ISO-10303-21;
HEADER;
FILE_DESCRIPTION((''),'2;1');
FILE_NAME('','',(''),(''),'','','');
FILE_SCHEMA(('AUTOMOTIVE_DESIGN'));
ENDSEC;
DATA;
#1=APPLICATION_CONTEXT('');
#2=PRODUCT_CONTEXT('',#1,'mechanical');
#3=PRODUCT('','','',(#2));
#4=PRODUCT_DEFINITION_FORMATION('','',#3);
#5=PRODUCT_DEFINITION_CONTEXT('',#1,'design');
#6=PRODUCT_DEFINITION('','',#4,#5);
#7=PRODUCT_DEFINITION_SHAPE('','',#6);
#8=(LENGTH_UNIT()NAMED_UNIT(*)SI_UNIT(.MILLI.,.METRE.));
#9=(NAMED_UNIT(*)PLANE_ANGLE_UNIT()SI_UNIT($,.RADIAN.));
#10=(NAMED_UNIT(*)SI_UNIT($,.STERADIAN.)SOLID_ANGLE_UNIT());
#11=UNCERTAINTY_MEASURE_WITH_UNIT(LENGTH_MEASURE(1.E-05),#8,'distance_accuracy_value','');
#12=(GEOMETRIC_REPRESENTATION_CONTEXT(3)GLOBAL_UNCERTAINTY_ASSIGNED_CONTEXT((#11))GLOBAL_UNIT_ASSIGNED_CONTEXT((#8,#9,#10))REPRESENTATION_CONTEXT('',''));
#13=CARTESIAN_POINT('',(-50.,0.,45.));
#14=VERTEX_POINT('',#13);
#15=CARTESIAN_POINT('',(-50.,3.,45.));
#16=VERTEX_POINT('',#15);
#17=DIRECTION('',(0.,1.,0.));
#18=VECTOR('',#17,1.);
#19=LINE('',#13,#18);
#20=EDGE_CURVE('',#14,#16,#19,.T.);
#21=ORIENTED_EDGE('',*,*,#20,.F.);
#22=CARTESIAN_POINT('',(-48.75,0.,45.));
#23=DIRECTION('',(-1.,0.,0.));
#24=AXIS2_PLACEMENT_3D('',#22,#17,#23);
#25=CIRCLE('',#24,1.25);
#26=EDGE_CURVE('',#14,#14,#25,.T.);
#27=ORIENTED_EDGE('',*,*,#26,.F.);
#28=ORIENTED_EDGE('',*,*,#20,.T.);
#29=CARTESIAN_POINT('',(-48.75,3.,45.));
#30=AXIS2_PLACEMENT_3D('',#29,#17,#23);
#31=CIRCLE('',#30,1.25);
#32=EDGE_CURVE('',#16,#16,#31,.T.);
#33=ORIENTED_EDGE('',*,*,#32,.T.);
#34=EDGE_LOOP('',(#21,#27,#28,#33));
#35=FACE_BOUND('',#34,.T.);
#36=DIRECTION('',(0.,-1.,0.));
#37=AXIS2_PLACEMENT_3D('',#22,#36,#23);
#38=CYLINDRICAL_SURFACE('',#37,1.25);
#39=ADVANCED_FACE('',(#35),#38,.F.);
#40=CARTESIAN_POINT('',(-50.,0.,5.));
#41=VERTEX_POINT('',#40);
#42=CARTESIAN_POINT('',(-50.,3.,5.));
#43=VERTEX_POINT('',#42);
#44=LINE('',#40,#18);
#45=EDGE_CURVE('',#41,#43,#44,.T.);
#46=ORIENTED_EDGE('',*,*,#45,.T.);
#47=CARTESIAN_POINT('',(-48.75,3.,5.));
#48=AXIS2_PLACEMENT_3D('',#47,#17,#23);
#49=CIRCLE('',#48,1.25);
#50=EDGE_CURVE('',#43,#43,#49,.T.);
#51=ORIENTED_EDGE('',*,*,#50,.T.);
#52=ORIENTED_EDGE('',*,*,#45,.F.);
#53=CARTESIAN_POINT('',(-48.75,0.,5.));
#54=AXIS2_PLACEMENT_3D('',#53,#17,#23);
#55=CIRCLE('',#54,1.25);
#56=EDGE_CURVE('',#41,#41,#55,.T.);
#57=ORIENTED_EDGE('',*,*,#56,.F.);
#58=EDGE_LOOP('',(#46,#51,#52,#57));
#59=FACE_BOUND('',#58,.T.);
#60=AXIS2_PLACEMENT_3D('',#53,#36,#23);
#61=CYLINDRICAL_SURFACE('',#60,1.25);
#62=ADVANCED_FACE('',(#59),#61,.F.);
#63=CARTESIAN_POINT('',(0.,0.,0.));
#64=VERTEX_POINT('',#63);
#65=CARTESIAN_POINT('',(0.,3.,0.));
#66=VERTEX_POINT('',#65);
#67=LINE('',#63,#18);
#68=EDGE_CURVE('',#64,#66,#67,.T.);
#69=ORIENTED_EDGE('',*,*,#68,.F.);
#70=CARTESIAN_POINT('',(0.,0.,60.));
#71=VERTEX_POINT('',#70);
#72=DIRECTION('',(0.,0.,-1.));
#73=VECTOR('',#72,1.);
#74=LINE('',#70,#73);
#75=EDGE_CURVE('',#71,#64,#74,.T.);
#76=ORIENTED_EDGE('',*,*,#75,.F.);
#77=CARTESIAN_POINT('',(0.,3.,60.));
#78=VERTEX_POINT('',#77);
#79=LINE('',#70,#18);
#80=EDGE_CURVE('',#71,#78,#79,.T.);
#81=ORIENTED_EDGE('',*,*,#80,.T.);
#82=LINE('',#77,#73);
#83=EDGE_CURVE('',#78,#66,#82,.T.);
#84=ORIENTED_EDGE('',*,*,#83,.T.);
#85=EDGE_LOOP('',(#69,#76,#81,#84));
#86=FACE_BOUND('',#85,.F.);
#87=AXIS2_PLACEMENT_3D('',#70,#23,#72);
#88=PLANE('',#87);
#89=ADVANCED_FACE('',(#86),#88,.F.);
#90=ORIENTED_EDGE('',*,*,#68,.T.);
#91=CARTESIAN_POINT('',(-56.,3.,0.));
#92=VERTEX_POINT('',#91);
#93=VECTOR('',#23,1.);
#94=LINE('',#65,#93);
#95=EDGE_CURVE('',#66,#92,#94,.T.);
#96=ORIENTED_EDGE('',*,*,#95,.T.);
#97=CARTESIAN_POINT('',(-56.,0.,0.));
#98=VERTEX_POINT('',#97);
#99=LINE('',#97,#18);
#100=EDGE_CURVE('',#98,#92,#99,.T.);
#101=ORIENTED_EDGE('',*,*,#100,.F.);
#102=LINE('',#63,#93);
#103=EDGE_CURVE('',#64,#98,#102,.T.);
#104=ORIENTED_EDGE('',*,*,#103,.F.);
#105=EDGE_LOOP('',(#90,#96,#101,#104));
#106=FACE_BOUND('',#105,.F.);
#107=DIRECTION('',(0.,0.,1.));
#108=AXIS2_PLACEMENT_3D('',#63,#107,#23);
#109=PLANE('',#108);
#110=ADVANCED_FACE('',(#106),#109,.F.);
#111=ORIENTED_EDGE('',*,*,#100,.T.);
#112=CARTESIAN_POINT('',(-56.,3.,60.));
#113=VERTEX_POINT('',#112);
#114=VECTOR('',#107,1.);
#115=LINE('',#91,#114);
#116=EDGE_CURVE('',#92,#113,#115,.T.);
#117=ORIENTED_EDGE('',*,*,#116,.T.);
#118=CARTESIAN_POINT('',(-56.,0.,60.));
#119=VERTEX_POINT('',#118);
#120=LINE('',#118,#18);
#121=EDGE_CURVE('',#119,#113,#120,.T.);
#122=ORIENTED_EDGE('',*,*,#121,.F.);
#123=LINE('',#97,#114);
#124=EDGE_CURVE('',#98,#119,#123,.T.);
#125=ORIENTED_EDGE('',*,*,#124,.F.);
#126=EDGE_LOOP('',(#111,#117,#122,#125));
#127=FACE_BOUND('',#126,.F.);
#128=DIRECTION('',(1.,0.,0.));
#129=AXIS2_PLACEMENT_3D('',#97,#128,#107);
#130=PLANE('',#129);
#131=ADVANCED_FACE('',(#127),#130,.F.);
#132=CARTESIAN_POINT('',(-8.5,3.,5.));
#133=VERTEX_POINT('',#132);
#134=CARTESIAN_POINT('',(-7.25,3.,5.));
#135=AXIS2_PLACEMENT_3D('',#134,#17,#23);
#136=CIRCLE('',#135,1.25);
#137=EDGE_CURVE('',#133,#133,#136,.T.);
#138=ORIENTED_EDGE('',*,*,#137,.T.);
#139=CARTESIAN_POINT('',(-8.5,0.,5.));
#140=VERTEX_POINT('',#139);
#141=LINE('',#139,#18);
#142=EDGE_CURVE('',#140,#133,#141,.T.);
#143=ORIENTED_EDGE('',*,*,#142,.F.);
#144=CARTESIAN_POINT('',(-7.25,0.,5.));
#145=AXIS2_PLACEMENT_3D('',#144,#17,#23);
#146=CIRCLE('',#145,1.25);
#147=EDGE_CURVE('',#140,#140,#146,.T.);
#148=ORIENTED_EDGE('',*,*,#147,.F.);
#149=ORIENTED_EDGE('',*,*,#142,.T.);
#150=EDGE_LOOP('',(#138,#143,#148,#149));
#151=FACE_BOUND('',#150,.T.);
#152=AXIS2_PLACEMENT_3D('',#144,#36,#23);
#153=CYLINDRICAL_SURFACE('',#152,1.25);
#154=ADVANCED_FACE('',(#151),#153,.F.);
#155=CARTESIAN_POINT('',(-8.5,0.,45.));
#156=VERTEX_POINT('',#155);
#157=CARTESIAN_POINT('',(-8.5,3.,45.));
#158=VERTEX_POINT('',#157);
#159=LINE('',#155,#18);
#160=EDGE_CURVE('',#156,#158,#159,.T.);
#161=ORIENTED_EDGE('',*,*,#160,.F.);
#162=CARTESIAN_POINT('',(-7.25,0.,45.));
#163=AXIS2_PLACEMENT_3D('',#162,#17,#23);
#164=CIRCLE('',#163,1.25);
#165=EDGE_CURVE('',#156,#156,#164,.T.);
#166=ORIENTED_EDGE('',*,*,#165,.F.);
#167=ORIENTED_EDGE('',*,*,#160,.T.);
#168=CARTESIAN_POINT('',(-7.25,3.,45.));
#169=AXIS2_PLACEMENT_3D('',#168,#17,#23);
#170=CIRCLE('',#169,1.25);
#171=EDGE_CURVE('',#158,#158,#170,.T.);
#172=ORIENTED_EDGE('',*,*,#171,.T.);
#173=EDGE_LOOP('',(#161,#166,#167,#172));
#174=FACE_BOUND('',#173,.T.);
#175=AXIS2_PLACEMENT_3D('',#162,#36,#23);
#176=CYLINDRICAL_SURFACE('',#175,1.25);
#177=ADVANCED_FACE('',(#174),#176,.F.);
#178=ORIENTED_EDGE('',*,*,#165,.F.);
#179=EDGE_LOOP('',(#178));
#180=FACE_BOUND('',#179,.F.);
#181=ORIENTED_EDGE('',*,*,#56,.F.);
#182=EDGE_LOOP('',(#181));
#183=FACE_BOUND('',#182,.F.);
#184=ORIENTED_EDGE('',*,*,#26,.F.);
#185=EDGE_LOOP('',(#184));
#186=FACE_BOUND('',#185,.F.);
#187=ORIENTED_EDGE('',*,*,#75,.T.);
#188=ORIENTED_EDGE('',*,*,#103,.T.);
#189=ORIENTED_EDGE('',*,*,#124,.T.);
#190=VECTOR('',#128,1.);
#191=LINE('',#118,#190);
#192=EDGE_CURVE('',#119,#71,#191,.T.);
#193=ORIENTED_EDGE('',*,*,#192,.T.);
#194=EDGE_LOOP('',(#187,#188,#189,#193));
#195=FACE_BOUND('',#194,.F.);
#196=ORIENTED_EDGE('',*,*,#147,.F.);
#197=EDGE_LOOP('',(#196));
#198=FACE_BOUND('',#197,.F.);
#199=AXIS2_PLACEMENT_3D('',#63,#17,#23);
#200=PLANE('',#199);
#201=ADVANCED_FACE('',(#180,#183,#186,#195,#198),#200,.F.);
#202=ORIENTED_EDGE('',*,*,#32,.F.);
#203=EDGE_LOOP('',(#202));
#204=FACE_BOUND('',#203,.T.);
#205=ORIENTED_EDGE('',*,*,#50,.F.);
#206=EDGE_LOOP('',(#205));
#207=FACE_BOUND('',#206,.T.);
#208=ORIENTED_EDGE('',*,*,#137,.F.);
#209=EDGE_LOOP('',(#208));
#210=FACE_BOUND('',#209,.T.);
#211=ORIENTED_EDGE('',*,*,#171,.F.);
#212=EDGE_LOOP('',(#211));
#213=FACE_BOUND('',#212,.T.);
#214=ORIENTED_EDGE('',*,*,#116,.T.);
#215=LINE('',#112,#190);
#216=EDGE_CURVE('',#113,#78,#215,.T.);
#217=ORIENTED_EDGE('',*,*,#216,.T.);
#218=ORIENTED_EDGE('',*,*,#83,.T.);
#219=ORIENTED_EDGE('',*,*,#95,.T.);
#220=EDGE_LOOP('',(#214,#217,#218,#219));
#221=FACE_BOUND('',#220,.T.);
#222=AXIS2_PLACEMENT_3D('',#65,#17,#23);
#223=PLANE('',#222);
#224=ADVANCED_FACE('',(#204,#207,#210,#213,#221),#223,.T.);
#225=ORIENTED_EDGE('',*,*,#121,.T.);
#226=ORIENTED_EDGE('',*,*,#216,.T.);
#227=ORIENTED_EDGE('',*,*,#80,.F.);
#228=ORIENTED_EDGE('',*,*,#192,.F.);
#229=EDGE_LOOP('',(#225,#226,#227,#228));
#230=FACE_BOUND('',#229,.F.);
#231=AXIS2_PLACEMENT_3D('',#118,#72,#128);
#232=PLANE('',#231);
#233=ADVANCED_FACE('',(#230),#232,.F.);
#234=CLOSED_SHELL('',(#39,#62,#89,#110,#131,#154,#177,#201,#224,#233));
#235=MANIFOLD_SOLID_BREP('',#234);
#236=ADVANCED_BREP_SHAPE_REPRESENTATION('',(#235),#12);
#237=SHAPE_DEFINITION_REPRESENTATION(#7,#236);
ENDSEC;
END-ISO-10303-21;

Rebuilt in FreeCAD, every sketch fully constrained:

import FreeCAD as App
import Part
import Sketcher
Q = App.Units.Quantity


def add_polygon(sketch, points):
    """Adds a closed chain of lines whose ends are joined by coincident constraints."""
    first, n = sketch.GeometryCount, len(points)
    for a, b in zip(points, points[1:] + points[:1]):
        sketch.addGeometry(Part.LineSegment(App.Vector(*a, 0), App.Vector(*b, 0)), False)
    for i in range(n):
        sketch.addConstraint(Sketcher.Constraint("Coincident", first + i, 2, first + (i + 1) % n, 1))

doc = App.newDocument("Part")
body = doc.addObject("PartDesign::Body", "Body")

# Sketch on XZ plane
sketch1 = body.newObject("Sketcher::SketchObject", "Sketch")
sketch1.AttachmentSupport = (doc.getObject("XZ_Plane"), [""])
sketch1.MapMode = "FlatFace"
add_polygon(sketch1, [(0, 60), (0, 0), (-56, 0), (-56, 60)])  # lines 0-3
sketch1.addGeometry(Part.Circle(App.Vector(-7.25, 5, 0), App.Vector(0, 0, 1), 1.25), False)  # 4
sketch1.addGeometry(Part.Circle(App.Vector(-48.75, 5, 0), App.Vector(0, 0, 1), 1.25), False)  # 5
sketch1.addGeometry(Part.Circle(App.Vector(-7.25, 45, 0), App.Vector(0, 0, 1), 1.25), False)  # 6
sketch1.addGeometry(Part.Circle(App.Vector(-48.75, 45, 0), App.Vector(0, 0, 1), 1.25), False)  # 7
sketch1.addConstraint(Sketcher.Constraint("Vertical", 0))
sketch1.addConstraint(Sketcher.Constraint("Horizontal", 1))
sketch1.addConstraint(Sketcher.Constraint("Vertical", 2))
sketch1.addConstraint(Sketcher.Constraint("Horizontal", 3))
sketch1.addConstraint(Sketcher.Constraint("Coincident", 0, 2, -1, 1))
sketch1.addConstraint(Sketcher.Constraint("Equal", 4, 5))
sketch1.addConstraint(Sketcher.Constraint("Equal", 5, 6))
sketch1.addConstraint(Sketcher.Constraint("Equal", 6, 7))
sketch1.addConstraint(Sketcher.Constraint("Horizontal", 4, 3, 5, 3))
sketch1.addConstraint(Sketcher.Constraint("Horizontal", 6, 3, 7, 3))
sketch1.addConstraint(Sketcher.Constraint("Vertical", 4, 3, 6, 3))
sketch1.addConstraint(Sketcher.Constraint("Vertical", 5, 3, 7, 3))
sketch1.addConstraint(Sketcher.Constraint("Diameter", 4, Q("2.5 mm")))
sketch1.addConstraint(Sketcher.Constraint("DistanceX", 1, 2, 1, 1, Q("56 mm")))
sketch1.addConstraint(Sketcher.Constraint("DistanceY", 0, 2, 0, 1, Q("60 mm")))
sketch1.addConstraint(Sketcher.Constraint("DistanceY", -1, 1, 4, 3, Q("5 mm")))
sketch1.addConstraint(Sketcher.Constraint("DistanceY", 4, 3, 6, 3, Q("40 mm")))
sketch1.addConstraint(Sketcher.Constraint("DistanceX", 4, 3, -1, 1, Q("7.25 mm")))
sketch1.addConstraint(Sketcher.Constraint("DistanceX", 1, 2, 5, 3, Q("7.25 mm")))
pad1 = body.newObject("PartDesign::Pad", "Pad")
pad1.Profile = sketch1
pad1.Length = 3
pad1.Reversed = True

doc.recompute()
